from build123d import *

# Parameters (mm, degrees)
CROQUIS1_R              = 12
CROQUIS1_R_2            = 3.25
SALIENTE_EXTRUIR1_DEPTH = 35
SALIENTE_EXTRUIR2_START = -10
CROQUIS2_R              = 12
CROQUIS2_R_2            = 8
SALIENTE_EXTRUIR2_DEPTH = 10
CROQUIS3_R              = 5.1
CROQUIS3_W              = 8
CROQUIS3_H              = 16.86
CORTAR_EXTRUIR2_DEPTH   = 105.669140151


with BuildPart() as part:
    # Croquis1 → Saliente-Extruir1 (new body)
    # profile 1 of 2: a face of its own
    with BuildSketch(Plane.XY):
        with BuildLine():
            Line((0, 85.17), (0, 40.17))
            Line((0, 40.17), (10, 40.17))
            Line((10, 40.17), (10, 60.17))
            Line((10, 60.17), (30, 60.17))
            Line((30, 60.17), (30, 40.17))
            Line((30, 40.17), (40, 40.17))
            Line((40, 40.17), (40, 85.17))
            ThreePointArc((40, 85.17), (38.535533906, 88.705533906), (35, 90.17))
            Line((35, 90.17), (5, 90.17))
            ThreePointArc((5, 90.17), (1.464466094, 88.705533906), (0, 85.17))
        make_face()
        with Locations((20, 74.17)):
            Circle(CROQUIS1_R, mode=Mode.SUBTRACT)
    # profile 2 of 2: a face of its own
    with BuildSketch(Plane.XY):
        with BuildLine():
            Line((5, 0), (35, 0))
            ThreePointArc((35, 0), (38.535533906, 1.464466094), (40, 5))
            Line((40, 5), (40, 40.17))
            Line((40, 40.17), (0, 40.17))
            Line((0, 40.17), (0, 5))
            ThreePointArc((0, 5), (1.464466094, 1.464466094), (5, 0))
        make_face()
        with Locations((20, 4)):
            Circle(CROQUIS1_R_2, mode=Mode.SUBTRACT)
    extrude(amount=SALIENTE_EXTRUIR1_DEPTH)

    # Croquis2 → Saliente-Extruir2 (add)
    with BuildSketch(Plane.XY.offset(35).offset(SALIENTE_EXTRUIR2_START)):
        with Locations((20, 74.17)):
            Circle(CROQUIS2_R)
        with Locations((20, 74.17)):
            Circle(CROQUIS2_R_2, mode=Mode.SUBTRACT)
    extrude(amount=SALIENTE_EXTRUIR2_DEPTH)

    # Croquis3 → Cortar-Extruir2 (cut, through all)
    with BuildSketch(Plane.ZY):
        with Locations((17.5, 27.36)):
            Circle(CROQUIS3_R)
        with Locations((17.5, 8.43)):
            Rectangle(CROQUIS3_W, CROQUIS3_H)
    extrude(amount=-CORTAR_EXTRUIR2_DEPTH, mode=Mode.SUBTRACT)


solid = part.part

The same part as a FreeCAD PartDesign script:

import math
import FreeCAD as App
import Part
import Sketcher
from FreeCAD import Vector


def add_polygon(sketch, points):
    """Adds a closed chain of lines whose ends are joined by coincident constraints."""
    first, n = sketch.GeometryCount, len(points)
    for a, b in zip(points, points[1:] + points[:1]):
        sketch.addGeometry(Part.LineSegment(App.Vector(*a, 0), App.Vector(*b, 0)), False)
    for i in range(n):
        sketch.addConstraint(Sketcher.Constraint("Coincident", first + i, 2, first + (i + 1) % n, 1))

doc = App.newDocument("Part")
body = doc.addObject("PartDesign::Body", "Body")

sketch1 = body.newObject("Sketcher::SketchObject", "Sketch")
sketch1.AttachmentSupport = (doc.getObject("XY_Plane"), [""])
sketch1.MapMode = "FlatFace"
sketch1.addGeometry(Part.LineSegment(Vector(0, 85.2, 0), Vector(0, 5, 0)), False)
sketch1.addGeometry(Part.ArcOfCircle(Part.Circle(Vector(5, 5, 0), Vector(0, 0, 1), 5), math.radians(180), math.radians(270)), False)
sketch1.addGeometry(Part.LineSegment(Vector(5, 0, 0), Vector(35, 0, 0)), False)
sketch1.addGeometry(Part.ArcOfCircle(Part.Circle(Vector(35, 5, 0), Vector(0, 0, 1), 5), math.radians(-90), math.radians(0)), False)
sketch1.addGeometry(Part.LineSegment(Vector(40, 5, 0), Vector(40, 85.2, 0)), False)
sketch1.addGeometry(Part.ArcOfCircle(Part.Circle(Vector(35, 85.2, 0), Vector(0, 0, 1), 5), math.radians(0), math.radians(90)), False)
sketch1.addGeometry(Part.LineSegment(Vector(35, 90.2, 0), Vector(5, 90.2, 0)), False)
sketch1.addGeometry(Part.ArcOfCircle(Part.Circle(Vector(5, 85.2, 0), Vector(0, 0, 1), 5), math.radians(90), math.radians(180)), False)
add_polygon(sketch1, [(10, 40.2), (10, 60.2), (30, 60.2), (30, 40.2)])
sketch1.addGeometry(Part.Circle(Vector(20, 74.2, 0), Vector(0, 0, 1), 12), False)
sketch1.addGeometry(Part.Circle(Vector(20, 4, 0), Vector(0, 0, 1), 3.2), False)
sketch1.addConstraint(Sketcher.Constraint("Tangent", 0, 2, 1, 1))
sketch1.addConstraint(Sketcher.Constraint("Tangent", 1, 2, 2, 1))
sketch1.addConstraint(Sketcher.Constraint("Tangent", 2, 2, 3, 1))
sketch1.addConstraint(Sketcher.Constraint("Tangent", 3, 2, 4, 1))
sketch1.addConstraint(Sketcher.Constraint("Tangent", 4, 2, 5, 1))
sketch1.addConstraint(Sketcher.Constraint("Tangent", 5, 2, 6, 1))
sketch1.addConstraint(Sketcher.Constraint("Tangent", 6, 2, 7, 1))
sketch1.addConstraint(Sketcher.Constraint("Tangent", 7, 2, 0, 1))
sketch1.addConstraint(Sketcher.Constraint("Vertical", 0))
sketch1.addConstraint(Sketcher.Constraint("Horizontal", 2))
sketch1.addConstraint(Sketcher.Constraint("Vertical", 4))
sketch1.addConstraint(Sketcher.Constraint("Horizontal", 6))
sketch1.addConstraint(Sketcher.Constraint("Vertical", 8))
sketch1.addConstraint(Sketcher.Constraint("Horizontal", 9))
sketch1.addConstraint(Sketcher.Constraint("Vertical", 10))
sketch1.addConstraint(Sketcher.Constraint("Horizontal", 11))
sketch1.addConstraint(Sketcher.Constraint("Equal", 1, 3))
sketch1.addConstraint(Sketcher.Constraint("Equal", 3, 5))
sketch1.addConstraint(Sketcher.Constraint("Equal", 5, 7))
sketch1.addConstraint(Sketcher.Constraint("PointOnObject", 0, 2, -2))
sketch1.addConstraint(Sketcher.Constraint("PointOnObject", 1, 2, -1))
sketch1.addConstraint(Sketcher.Constraint("Vertical", 12, 3, 13, 3))
sketch1.addConstraint(Sketcher.Constraint("Equal", 11, 8))
sketch1.addConstraint(Sketcher.Constraint("Diameter", 12, 24.0))
sketch1.addConstraint(Sketcher.Constraint("Radius", 1, 5.0))
sketch1.addConstraint(Sketcher.Constraint("Diameter", 13, 6.5))
sketch1.addConstraint(Sketcher.Constraint("DistanceX", 2, 1, 2, 2, 30.0))
sketch1.addConstraint(Sketcher.Constraint("DistanceX", 9, 1, 9, 2, 20.0))
sketch1.addConstraint(Sketcher.Constraint("DistanceX", -1, 1, 12, 3, 20.0))
sketch1.addConstraint(Sketcher.Constraint("DistanceY", -1, 1, 13, 3, 4.0))
sketch1.addConstraint(Sketcher.Constraint("DistanceX", -1, 1, 8, 2, 10.0))
sketch1.addConstraint(Sketcher.Constraint("DistanceY", 12, 3, 5, 3, 11.0))
sketch1.addConstraint(Sketcher.Constraint("DistanceY", 8, 2, 12, 3, 14.0))
sketch1.addConstraint(Sketcher.Constraint("DistanceY", 0, 2, 0, 1, 80.17))
pad1 = body.newObject("PartDesign::Pad", "Pad")
pad1.Profile = sketch1
pad1.Length = 35

sketch2 = body.newObject("Sketcher::SketchObject", "Sketch001")
sketch2.AttachmentSupport = (doc.getObject("XY_Plane"), [""])
sketch2.MapMode = "FlatFace"
sketch2.AttachmentOffset = App.Placement(Vector(0, 0, 25), App.Rotation())
sketch2.addGeometry(Part.Circle(Vector(20, 74, 0), Vector(0, 0, 1), 12), False)
sketch2.addGeometry(Part.Circle(Vector(20, 74, 0), Vector(0, 0, 1), 8), False)
sketch2.addConstraint(Sketcher.Constraint("Coincident", 1, 3, 0, 3))
sketch2.addConstraint(Sketcher.Constraint("Diameter", 0, 24.0))
sketch2.addConstraint(Sketcher.Constraint("Diameter", 1, 16.0))
sketch2.addConstraint(Sketcher.Constraint("DistanceX", -1, 1, 0, 3, 20.0))
sketch2.addConstraint(Sketcher.Constraint("DistanceY", -1, 1, 0, 3, 74.17))
pad2 = body.newObject("PartDesign::Pad", "Pad001")
pad2.Profile = sketch2
pad2.Length = 10

sketch3 = body.newObject("Sketcher::SketchObject", "Sketch002")
sketch3.AttachmentSupport = (doc.getObject("YZ_Plane"), [""])
sketch3.MapMode = "FlatFace"
sketch3.addGeometry(Part.Circle(Vector(27, 18, 0), Vector(0, 0, 1), 5), False)
add_polygon(sketch3, [(17, 14), (0, 14), (0, 22), (17, 22)])
sketch3.addConstraint(Sketcher.Constraint("Horizontal", 1))
sketch3.addConstraint(Sketcher.Constraint("Vertical", 2))
sketch3.addConstraint(Sketcher.Constraint("Horizontal", 3))
sketch3.addConstraint(Sketcher.Constraint("Vertical", 4))
sketch3.addConstraint(Sketcher.Constraint("PointOnObject", 1, 2, -2))
sketch3.addConstraint(Sketcher.Constraint("Diameter", 0, 10.2))
sketch3.addConstraint(Sketcher.Constraint("DistanceY", 2, 1, 2, 2, 8.0))
sketch3.addConstraint(Sketcher.Constraint("DistanceY", 1, 2, 0, 3, 4.0))
sketch3.addConstraint(Sketcher.Constraint("DistanceX", 1, 2, 1, 1, 16.86))
sketch3.addConstraint(Sketcher.Constraint("DistanceY", -1, 1, 0, 3, 17.5))
sketch3.addConstraint(Sketcher.Constraint("DistanceX", 3, 2, 0, 3, 10.5))
pocket1 = body.newObject("PartDesign::Pocket", "Pocket")
pocket1.Profile = sketch3
pocket1.Type = "ThroughAll"
pocket1.Reversed = True

doc.recompute()
